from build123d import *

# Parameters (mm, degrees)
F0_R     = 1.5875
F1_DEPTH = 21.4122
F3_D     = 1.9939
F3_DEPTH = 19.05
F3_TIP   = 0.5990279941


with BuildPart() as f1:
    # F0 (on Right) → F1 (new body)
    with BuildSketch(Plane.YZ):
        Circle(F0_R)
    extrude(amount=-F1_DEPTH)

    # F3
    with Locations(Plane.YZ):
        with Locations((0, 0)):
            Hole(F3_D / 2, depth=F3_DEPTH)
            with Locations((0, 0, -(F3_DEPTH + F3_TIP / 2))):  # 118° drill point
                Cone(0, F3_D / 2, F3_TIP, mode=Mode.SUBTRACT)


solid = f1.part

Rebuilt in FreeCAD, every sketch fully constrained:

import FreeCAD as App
import Part
import Sketcher
Q = App.Units.Quantity

doc = App.newDocument("Part")
body = doc.addObject("PartDesign::Body", "Body")

# Sketch on YZ plane
sketch1 = body.newObject("Sketcher::SketchObject", "Sketch")
sketch1.AttachmentSupport = (doc.getObject("YZ_Plane"), [""])
sketch1.MapMode = "FlatFace"
sketch1.addGeometry(Part.Circle(App.Vector(0, 0, 0), App.Vector(0, 0, 1), 1.6), False)
sketch1.addConstraint(Sketcher.Constraint("Coincident", 0, 3, -1, 1))
sketch1.addConstraint(Sketcher.Constraint("Diameter", 0, Q("0.125 in")))
pad1 = body.newObject("PartDesign::Pad", "Pad")
pad1.Profile = sketch1
pad1.Length = Q("0.843 in")
pad1.Reversed = True

# Sketch on YZ plane
sketch2 = body.newObject("Sketcher::SketchObject", "Sketch001")
sketch2.AttachmentSupport = (doc.getObject("YZ_Plane"), [""])
sketch2.MapMode = "FlatFace"
sketch2.addGeometry(Part.Circle(App.Vector(0, 0, 0), App.Vector(0, 0, 1), 1), False)
sketch2.addConstraint(Sketcher.Constraint("Coincident", 0, 3, -1, 1))
sketch2.addConstraint(Sketcher.Constraint("Diameter", 0, Q("0.0785 in")))
doc.recompute()
hole = body.newObject("PartDesign::Hole", "Hole")
hole.Profile = sketch2
hole.ThreadType = "None"
hole.Diameter = Q("0.0785 in")
hole.DepthType = "Dimension"
hole.Depth = Q("0.75 in")
hole.DrillPoint = "Angled"
hole.DrillPointAngle = 118

doc.recompute()
